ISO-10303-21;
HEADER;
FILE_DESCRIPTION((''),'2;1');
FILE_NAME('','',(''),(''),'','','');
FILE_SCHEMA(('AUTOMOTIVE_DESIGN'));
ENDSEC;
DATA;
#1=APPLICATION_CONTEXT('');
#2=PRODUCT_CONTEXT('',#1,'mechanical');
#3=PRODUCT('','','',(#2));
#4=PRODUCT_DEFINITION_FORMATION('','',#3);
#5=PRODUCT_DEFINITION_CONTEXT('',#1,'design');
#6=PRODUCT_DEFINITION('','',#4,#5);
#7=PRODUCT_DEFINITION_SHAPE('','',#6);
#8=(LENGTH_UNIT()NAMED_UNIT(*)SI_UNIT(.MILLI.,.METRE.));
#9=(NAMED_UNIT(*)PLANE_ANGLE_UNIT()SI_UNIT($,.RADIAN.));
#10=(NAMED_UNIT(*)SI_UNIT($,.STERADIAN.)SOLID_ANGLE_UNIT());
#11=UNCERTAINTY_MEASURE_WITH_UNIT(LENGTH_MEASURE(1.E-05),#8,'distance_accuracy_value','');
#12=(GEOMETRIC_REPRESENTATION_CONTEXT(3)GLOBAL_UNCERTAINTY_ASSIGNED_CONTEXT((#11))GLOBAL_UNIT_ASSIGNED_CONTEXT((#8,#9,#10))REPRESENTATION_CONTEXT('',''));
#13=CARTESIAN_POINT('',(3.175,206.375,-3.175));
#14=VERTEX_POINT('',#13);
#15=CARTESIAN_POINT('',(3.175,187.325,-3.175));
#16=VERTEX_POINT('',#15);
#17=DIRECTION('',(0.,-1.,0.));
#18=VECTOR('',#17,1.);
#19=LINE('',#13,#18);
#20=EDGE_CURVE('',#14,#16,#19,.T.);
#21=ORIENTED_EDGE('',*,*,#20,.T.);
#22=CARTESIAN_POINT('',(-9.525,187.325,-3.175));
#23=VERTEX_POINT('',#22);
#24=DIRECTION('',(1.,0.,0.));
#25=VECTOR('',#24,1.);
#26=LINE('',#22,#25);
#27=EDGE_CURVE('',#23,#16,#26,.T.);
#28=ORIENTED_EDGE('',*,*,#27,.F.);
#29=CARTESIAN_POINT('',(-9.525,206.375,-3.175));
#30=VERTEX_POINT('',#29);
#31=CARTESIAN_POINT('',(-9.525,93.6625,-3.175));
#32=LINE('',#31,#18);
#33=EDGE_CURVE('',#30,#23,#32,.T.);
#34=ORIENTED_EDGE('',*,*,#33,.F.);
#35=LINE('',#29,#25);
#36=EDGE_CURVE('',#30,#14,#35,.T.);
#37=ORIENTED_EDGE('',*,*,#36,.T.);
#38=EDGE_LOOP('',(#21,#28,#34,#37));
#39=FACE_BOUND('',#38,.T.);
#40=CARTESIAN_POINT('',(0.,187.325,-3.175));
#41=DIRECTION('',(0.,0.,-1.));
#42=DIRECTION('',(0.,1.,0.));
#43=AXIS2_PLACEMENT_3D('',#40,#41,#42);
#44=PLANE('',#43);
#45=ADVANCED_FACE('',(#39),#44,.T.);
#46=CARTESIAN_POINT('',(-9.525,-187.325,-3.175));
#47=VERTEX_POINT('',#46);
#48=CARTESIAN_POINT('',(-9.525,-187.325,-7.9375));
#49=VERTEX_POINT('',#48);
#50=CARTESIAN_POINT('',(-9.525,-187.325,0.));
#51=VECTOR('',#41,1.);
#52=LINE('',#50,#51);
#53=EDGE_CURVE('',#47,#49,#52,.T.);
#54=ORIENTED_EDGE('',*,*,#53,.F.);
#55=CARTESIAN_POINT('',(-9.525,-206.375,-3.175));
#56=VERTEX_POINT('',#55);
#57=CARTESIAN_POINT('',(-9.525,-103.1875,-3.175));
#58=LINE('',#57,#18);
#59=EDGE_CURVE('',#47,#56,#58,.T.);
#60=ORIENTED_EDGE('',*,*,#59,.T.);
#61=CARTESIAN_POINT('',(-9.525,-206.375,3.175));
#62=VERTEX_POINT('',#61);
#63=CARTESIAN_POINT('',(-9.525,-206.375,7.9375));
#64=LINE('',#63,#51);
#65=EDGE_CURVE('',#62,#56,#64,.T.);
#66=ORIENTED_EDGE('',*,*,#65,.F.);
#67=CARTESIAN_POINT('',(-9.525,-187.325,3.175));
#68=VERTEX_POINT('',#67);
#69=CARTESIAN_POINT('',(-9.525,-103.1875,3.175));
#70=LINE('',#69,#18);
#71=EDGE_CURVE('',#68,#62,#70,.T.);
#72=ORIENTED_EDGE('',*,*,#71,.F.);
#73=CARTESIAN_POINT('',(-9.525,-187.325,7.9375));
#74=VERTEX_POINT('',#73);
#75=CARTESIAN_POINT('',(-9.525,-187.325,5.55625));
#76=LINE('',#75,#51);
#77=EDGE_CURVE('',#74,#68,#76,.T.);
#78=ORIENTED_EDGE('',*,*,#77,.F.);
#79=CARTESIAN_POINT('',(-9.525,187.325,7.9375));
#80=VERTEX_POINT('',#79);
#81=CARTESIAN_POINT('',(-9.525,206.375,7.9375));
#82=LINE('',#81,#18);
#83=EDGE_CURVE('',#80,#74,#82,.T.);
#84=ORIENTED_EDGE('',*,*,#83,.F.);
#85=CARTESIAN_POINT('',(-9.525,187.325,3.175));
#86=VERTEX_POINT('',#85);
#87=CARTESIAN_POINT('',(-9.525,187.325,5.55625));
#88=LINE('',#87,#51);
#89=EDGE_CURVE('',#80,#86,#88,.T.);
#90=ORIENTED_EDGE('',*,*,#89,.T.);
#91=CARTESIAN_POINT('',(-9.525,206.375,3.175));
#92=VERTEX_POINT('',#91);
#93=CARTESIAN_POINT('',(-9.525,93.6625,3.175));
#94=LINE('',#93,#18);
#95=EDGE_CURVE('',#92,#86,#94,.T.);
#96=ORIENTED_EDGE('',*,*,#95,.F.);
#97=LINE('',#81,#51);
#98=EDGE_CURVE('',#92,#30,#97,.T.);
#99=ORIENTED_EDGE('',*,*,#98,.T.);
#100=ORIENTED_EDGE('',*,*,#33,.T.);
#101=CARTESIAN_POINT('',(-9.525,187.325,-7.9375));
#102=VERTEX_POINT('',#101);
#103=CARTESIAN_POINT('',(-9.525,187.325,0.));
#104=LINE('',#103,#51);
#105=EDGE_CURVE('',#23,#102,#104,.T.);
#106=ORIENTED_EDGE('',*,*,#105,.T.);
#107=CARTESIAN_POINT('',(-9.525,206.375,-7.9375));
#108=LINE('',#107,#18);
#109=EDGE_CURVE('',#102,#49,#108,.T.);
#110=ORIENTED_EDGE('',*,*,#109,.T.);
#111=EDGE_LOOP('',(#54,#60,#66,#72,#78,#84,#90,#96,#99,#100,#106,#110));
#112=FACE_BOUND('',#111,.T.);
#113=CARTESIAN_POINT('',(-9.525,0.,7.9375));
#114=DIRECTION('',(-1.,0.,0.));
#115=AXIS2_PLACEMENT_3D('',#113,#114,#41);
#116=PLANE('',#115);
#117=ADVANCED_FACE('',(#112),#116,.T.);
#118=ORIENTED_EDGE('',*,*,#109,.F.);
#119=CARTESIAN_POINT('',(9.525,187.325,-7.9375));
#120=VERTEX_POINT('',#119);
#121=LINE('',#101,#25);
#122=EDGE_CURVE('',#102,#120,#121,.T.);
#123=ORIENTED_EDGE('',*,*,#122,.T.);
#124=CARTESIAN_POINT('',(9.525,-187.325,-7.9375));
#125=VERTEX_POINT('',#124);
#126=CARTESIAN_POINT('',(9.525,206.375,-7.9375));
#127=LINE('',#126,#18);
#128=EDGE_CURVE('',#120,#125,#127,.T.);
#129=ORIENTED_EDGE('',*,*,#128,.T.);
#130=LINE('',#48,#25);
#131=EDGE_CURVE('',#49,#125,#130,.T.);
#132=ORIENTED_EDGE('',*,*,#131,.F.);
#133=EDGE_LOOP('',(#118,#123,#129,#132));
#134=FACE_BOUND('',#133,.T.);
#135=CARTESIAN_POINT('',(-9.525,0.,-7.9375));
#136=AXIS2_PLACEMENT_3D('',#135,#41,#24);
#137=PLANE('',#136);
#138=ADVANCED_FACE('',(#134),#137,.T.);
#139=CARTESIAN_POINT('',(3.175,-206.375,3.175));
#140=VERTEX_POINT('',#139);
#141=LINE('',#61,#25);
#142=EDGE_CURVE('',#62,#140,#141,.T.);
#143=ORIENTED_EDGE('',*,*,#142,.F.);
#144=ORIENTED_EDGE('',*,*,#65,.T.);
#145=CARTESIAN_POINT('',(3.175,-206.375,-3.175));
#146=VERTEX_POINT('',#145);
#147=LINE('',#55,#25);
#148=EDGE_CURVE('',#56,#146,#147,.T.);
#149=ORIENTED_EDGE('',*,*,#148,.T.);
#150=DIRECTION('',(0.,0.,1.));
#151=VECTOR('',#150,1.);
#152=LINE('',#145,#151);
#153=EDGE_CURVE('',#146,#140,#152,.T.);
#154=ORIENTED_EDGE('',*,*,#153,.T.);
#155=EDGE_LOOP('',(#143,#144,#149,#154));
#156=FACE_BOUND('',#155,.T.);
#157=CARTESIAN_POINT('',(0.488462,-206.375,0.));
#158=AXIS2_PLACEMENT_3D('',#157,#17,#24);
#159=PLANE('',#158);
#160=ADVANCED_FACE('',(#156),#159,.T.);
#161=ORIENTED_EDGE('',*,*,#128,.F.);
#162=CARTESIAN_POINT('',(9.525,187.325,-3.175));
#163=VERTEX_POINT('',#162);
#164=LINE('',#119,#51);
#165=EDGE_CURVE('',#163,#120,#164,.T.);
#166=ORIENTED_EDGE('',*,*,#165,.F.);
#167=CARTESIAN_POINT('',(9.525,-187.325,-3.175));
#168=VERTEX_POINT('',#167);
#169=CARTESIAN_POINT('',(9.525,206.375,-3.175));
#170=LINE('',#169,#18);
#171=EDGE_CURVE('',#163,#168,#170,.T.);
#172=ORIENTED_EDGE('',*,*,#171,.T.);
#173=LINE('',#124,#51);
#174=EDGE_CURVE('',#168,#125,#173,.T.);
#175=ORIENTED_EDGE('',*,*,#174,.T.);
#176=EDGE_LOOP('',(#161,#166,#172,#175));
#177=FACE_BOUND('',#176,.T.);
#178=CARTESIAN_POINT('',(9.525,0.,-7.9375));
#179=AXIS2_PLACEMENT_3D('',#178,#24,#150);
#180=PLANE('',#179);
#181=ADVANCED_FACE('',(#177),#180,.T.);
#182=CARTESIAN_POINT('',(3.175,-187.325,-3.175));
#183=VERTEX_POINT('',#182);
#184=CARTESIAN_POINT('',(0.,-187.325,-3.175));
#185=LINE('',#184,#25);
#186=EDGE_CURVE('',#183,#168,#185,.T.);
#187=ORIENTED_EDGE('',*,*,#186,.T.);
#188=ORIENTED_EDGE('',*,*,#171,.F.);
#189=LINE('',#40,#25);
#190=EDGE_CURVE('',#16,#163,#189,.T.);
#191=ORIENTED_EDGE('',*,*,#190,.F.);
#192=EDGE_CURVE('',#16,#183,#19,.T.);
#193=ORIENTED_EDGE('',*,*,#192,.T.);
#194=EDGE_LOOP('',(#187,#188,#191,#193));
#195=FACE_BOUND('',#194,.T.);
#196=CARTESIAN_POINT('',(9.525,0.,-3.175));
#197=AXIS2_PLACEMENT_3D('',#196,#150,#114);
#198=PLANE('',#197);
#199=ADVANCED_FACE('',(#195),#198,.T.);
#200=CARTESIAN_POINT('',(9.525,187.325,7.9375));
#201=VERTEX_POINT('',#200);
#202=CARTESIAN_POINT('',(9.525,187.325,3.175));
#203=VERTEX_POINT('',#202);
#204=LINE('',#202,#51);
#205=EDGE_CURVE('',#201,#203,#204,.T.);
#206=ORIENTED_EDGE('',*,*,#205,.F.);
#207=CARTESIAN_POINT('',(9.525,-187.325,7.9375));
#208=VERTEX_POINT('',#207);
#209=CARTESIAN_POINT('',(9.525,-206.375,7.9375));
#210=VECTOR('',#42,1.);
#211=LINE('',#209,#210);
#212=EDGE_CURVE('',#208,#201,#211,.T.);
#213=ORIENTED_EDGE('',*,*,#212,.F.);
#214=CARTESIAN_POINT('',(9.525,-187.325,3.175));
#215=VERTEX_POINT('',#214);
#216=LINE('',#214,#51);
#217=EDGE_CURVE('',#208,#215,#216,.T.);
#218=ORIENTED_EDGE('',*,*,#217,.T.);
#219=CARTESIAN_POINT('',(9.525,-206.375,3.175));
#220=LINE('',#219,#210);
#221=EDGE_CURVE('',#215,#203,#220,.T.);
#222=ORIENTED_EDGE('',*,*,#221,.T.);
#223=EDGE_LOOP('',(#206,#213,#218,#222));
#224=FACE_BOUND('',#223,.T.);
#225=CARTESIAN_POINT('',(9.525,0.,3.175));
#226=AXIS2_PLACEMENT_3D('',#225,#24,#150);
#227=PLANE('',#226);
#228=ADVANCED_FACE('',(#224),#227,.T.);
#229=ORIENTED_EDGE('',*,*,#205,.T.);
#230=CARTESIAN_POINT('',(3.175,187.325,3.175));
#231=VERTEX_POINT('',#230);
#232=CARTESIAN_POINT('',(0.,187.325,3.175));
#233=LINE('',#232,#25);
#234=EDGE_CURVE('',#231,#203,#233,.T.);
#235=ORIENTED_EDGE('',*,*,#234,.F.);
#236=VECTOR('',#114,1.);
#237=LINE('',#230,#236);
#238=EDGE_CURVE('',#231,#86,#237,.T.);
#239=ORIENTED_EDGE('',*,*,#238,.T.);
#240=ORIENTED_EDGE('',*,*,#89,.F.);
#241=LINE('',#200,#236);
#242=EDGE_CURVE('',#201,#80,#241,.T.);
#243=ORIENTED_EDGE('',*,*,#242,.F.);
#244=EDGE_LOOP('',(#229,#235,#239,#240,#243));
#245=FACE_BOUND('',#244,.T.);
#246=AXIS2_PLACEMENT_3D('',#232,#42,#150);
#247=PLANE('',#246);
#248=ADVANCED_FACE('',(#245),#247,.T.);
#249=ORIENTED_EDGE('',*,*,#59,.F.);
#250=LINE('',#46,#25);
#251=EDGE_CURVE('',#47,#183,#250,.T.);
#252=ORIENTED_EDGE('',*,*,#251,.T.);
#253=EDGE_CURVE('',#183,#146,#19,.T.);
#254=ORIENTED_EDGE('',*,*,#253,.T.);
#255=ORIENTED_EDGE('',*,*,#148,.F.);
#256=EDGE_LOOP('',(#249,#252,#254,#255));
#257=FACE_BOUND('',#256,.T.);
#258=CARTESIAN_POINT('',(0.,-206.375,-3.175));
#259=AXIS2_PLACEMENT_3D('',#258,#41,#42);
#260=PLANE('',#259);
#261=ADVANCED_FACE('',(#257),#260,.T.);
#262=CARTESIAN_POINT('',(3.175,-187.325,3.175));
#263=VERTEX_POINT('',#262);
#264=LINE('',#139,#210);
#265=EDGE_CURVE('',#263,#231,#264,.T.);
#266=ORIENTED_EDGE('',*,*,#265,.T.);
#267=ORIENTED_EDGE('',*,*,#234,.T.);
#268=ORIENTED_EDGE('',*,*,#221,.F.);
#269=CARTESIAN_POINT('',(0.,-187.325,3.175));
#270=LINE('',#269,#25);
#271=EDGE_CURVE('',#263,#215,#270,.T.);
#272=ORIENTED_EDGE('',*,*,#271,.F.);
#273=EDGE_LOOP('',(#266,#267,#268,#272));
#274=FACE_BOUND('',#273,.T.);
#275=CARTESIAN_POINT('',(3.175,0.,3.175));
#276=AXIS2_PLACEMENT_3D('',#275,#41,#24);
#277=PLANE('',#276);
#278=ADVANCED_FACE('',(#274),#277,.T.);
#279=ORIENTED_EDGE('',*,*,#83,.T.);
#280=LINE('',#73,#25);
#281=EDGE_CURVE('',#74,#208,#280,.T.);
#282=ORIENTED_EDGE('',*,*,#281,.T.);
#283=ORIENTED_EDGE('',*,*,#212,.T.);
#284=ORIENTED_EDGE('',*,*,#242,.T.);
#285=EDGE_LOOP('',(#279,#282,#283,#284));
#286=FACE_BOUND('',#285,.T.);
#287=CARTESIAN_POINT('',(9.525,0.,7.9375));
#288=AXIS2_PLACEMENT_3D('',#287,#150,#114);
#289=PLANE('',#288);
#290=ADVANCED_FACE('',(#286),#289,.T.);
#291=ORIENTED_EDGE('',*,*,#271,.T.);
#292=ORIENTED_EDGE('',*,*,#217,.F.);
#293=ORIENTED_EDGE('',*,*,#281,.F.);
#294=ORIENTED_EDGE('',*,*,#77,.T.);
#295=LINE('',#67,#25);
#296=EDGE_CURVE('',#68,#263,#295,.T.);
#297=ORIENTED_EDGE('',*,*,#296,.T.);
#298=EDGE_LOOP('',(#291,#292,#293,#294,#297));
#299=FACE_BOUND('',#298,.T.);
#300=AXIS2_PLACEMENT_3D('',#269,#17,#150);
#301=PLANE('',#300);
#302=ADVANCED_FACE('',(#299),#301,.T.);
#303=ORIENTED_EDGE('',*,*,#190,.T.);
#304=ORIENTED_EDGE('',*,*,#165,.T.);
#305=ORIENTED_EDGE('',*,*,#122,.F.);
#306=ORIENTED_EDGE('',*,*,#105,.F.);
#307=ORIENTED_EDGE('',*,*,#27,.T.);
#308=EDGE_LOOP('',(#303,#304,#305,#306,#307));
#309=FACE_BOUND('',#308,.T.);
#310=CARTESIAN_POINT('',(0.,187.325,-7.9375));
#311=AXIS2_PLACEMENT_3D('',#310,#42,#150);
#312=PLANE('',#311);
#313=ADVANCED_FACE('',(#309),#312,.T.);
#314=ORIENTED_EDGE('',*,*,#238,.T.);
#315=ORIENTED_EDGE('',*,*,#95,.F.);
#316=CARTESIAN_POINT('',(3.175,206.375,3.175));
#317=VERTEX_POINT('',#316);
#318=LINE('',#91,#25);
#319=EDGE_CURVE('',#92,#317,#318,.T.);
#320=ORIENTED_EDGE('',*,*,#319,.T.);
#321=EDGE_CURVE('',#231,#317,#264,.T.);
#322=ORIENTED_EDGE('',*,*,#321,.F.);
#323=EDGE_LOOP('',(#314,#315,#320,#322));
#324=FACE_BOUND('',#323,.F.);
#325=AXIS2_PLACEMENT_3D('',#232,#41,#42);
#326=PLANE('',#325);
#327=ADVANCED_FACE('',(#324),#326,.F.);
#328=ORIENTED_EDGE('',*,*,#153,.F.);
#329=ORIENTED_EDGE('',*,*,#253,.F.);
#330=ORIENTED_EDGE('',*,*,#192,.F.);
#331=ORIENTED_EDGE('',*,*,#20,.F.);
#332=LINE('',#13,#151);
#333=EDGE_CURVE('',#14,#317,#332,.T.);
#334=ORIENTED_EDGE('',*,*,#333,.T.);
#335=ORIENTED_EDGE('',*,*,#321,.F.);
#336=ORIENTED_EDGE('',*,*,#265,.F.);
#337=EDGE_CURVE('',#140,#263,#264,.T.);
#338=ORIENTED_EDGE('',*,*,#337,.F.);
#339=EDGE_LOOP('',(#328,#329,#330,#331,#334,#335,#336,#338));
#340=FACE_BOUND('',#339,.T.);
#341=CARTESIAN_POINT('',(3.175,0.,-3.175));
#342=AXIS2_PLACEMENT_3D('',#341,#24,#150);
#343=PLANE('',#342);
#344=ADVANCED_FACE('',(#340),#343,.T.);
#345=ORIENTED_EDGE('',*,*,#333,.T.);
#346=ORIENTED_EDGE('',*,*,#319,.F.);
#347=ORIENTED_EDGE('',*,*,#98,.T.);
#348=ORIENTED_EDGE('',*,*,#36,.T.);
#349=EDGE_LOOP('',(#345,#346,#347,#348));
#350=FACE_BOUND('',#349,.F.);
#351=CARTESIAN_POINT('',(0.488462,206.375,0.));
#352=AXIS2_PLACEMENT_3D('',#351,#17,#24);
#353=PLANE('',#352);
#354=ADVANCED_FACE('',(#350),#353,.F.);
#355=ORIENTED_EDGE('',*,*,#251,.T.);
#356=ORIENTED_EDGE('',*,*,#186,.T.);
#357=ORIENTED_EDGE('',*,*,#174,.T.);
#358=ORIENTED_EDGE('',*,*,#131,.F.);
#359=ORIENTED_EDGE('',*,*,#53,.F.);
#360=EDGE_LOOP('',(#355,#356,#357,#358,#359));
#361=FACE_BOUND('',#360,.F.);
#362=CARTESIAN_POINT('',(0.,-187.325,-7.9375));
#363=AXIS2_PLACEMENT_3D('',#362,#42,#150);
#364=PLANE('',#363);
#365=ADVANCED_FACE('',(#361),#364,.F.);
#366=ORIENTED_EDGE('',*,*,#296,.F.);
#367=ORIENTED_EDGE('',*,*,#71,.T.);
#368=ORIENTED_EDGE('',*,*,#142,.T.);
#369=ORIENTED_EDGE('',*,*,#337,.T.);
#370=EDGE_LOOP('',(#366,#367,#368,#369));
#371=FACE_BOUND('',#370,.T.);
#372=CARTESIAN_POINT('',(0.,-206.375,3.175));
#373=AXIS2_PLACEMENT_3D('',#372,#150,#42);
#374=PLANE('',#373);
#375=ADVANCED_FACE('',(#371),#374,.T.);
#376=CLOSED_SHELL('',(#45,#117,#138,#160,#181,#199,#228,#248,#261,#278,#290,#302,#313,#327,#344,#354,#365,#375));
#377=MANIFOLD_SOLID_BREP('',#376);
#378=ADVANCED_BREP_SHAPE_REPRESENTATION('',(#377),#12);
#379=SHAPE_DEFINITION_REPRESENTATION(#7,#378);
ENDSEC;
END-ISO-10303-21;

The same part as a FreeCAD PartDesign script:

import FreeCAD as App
import Part
import Sketcher
from FreeCAD import Vector
Q = App.Units.Quantity


def add_polygon(sketch, points):
    """Adds a closed chain of lines whose ends are joined by coincident constraints."""
    first, n = sketch.GeometryCount, len(points)
    for a, b in zip(points, points[1:] + points[:1]):
        sketch.addGeometry(Part.LineSegment(App.Vector(*a, 0), App.Vector(*b, 0)), False)
    for i in range(n):
        sketch.addConstraint(Sketcher.Constraint("Coincident", first + i, 2, first + (i + 1) % n, 1))

doc = App.newDocument("Part")
params = doc.addObject("Spreadsheet::Sheet", "Params")
for row, (alias, value) in enumerate([
    ("sketch1_width", "0.75 in"),
    ("sketch1_width2", "0.25 in"),
    ("sketch1_height", "0.625 in"),
    ("pad1_length", "16.25 in"),
    ("sketch2_width", "0.75 in"),
    ("sketch2_height", "0.1875 in"),
], start=1):
    params.set(f"A{row}", alias)
    params.set(f"B{row}", "=" + value)
    params.setAlias(f"B{row}", alias)

body = doc.addObject("PartDesign::Body", "Body")

# Sketch on XZ plane
sketch1 = body.newObject("Sketcher::SketchObject", "Sketch")
sketch1.AttachmentSupport = (doc.getObject("XZ_Plane"), [""])
sketch1.MapMode = "FlatFace"
add_polygon(sketch1, [(9.5, 7.9), (-9.5, 7.9), (-9.5, -7.9), (9.5, -7.9), (9.5, -3.2), (3.2, -3.2), (3.2, 3.2), (9.5, 3.2)])  # lines 0-7
sketch1.addConstraint([
    Sketcher.Constraint("Horizontal", 0),
    Sketcher.Constraint("Vertical", 1),
    Sketcher.Constraint("Horizontal", 2),
    Sketcher.Constraint("Vertical", 3),
    Sketcher.Constraint("Horizontal", 4),
    Sketcher.Constraint("Vertical", 5),
    Sketcher.Constraint("Horizontal", 6),
    Sketcher.Constraint("Vertical", 7),
    Sketcher.Constraint("Symmetric", 0, 2, 2, 2, -1, 1),
    Sketcher.Constraint("Symmetric", 3, 2, 6, 2, -1),
    Sketcher.Constraint("Equal", 6, 5),
    Sketcher.Constraint("DistanceX", 0, 2, 0, 1, Q("0.75 in")),
    Sketcher.Constraint("DistanceX", 4, 2, 4, 1, Q("0.25 in")),
    Sketcher.Constraint("DistanceY", 1, 2, 1, 1, Q("0.625 in")),
])
sketch1.setExpression("Constraints[19]", "Params.sketch1_width")
sketch1.setExpression("Constraints[20]", "Params.sketch1_width2")
sketch1.setExpression("Constraints[21]", "Params.sketch1_height")
pad1 = body.newObject("PartDesign::Pad", "Pad")
pad1.Profile = sketch1
pad1.setExpression("Length", "Params.pad1_length")
pad1.Midplane = True

# Sketch on YZ plane
sketch2 = body.newObject("Sketcher::SketchObject", "Sketch001")
sketch2.AttachmentSupport = (doc.getObject("YZ_Plane"), [""])
sketch2.MapMode = "FlatFace"
add_polygon(sketch2, [(-206.4, 7.9), (-206.4, 3.2), (-187.3, 3.2), (-187.3, 7.9)])  # lines 0-3
add_polygon(sketch2, [(-206.4, -3.2), (-206.4, -7.9), (-187.3, -7.9), (-187.3, -3.2)])  # lines 4-7
add_polygon(sketch2, [(187.3, 7.9), (187.3, 3.2), (206.4, 3.2), (206.4, 7.9)])  # lines 8-11
add_polygon(sketch2, [(187.3, -3.2), (187.3, -7.9), (206.4, -7.9), (206.4, -3.2)])  # lines 12-15
sketch2.addConstraint([
    Sketcher.Constraint("Vertical", 0),
    Sketcher.Constraint("Horizontal", 1),
    Sketcher.Constraint("Vertical", 2),
    Sketcher.Constraint("Horizontal", 3),
    Sketcher.Constraint("Vertical", 4),
    Sketcher.Constraint("Horizontal", 5),
    Sketcher.Constraint("Vertical", 6),
    Sketcher.Constraint("Horizontal", 7),
    Sketcher.Constraint("Vertical", 8),
    Sketcher.Constraint("Horizontal", 9),
    Sketcher.Constraint("Vertical", 10),
    Sketcher.Constraint("Horizontal", 11),
    Sketcher.Constraint("Vertical", 12),
    Sketcher.Constraint("Horizontal", 13),
    Sketcher.Constraint("Vertical", 14),
    Sketcher.Constraint("Horizontal", 15),
    Sketcher.Constraint("Symmetric", 6, 2, 8, 2, -1, 1),
    Sketcher.Constraint("Symmetric", 4, 2, 10, 2, -1, 1),
    Sketcher.Constraint("Symmetric", 2, 2, 12, 2, -1, 1),
    Sketcher.Constraint("Symmetric", 0, 2, 14, 2, -1, 1),
    Sketcher.Constraint("Symmetric", 1, 2, 8, 2, -2),
    Sketcher.Constraint("Symmetric", 3, 2, 10, 2, -2),
    Sketcher.Constraint("DistanceX", 1, 1, 1, 2, Q("0.75 in")),
    Sketcher.Constraint("DistanceX", 0, 2, 8, 2, Q("15.5 in")),
    Sketcher.Constraint("DistanceY", 0, 2, 0, 1, Q("0.1875 in")),
    Sketcher.Constraint("DistanceY", 6, 2, 1, 2, Q("0.25 in")),
])
sketch2.setExpression("Constraints[38]", "Params.sketch2_width")
sketch2.setExpression("Constraints[40]", "Params.sketch2_height")
pocket1 = body.newObject("PartDesign::Pocket", "Pocket")
pocket1.Profile = sketch2
pocket1.Type = "ThroughAll"
pocket1.Midplane = True

doc.recompute()
